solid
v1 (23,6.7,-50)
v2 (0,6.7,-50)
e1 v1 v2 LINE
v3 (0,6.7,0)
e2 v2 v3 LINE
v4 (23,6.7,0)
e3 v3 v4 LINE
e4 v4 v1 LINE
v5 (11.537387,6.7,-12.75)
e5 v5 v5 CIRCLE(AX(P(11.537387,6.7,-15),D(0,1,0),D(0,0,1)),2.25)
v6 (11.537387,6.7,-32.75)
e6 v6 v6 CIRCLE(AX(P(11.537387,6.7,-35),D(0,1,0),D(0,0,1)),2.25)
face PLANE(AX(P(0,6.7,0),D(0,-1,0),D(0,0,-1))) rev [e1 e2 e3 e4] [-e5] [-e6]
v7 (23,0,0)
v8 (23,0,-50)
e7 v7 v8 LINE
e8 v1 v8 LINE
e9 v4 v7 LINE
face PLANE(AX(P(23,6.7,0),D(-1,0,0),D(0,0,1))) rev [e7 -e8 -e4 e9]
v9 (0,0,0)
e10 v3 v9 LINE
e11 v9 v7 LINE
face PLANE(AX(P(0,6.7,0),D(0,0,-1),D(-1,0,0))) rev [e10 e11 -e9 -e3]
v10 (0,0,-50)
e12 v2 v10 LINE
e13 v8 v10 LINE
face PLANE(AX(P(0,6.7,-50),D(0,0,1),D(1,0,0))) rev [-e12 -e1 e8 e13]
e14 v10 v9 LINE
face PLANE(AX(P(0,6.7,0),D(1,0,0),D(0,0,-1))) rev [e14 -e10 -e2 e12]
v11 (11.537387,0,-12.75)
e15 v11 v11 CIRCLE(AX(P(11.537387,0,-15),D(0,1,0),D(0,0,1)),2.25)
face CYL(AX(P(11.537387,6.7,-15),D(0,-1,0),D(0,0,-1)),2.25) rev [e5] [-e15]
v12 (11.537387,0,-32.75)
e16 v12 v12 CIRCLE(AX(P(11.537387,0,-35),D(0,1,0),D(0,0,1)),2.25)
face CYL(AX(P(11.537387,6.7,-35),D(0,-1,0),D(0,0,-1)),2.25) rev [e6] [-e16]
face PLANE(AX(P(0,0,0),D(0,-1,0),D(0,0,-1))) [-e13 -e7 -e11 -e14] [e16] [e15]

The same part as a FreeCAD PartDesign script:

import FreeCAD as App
import Part
import Sketcher

V = App.Vector

doc = App.newDocument("Part")
body = doc.addObject("PartDesign::Body", "Body")

# Sketch on XZ plane
sketch1 = body.newObject("Sketcher::SketchObject", "Sketch")
sketch1.AttachmentSupport = (doc.getObject("XZ_Plane"), [""])
sketch1.MapMode = "FlatFace"
sketch1.addGeometry(Part.LineSegment(V(0, -50, 0), V(0, 0, 0)), False)
sketch1.addGeometry(Part.LineSegment(V(0, 0, 0), V(23, 0, 0)), False)
sketch1.addGeometry(Part.LineSegment(V(23, 0, 0), V(23, -50, 0)), False)
sketch1.addGeometry(Part.LineSegment(V(23, -50, 0), V(0, -50, 0)), False)
sketch1.addGeometry(Part.Circle(V(11.5, -15, 0), V(0, 0, 1), 2.2), False)
sketch1.addGeometry(Part.Circle(V(11.5, -35, 0), V(0, 0, 1), 2.2), False)
sketch1.addConstraint(Sketcher.Constraint("Coincident", 0, 2, 1, 1))
sketch1.addConstraint(Sketcher.Constraint("Coincident", 1, 2, 2, 1))
sketch1.addConstraint(Sketcher.Constraint("Coincident", 2, 2, 3, 1))
sketch1.addConstraint(Sketcher.Constraint("Coincident", 3, 2, 0, 1))
sketch1.addConstraint(Sketcher.Constraint("Vertical", 0))
sketch1.addConstraint(Sketcher.Constraint("Horizontal", 1))
sketch1.addConstraint(Sketcher.Constraint("Vertical", 2))
sketch1.addConstraint(Sketcher.Constraint("Horizontal", 3))
sketch1.addConstraint(Sketcher.Constraint("Coincident", 0, 2, -1, 1))
sketch1.addConstraint(Sketcher.Constraint("Equal", 4, 5))
sketch1.addConstraint(Sketcher.Constraint("Vertical", 4, 3, 5, 3))
sketch1.addConstraint(Sketcher.Constraint("Diameter", 4, 4.5))
sketch1.addConstraint(Sketcher.Constraint("DistanceX", 1, 1, 1, 2, 23.0))
sketch1.addConstraint(Sketcher.Constraint("DistanceY", 0, 1, 0, 2, 50.0))
sketch1.addConstraint(Sketcher.Constraint("DistanceY", 4, 3, -1, 1, 15.0))
sketch1.addConstraint(Sketcher.Constraint("DistanceY", 5, 3, -1, 1, 35.0))
sketch1.addConstraint(Sketcher.Constraint("DistanceX", -1, 1, 4, 3, 11.537387))
pad1 = body.newObject("PartDesign::Pad", "Pad")
pad1.Profile = sketch1
pad1.Length = 6.7
pad1.Reversed = True

doc.recompute()
